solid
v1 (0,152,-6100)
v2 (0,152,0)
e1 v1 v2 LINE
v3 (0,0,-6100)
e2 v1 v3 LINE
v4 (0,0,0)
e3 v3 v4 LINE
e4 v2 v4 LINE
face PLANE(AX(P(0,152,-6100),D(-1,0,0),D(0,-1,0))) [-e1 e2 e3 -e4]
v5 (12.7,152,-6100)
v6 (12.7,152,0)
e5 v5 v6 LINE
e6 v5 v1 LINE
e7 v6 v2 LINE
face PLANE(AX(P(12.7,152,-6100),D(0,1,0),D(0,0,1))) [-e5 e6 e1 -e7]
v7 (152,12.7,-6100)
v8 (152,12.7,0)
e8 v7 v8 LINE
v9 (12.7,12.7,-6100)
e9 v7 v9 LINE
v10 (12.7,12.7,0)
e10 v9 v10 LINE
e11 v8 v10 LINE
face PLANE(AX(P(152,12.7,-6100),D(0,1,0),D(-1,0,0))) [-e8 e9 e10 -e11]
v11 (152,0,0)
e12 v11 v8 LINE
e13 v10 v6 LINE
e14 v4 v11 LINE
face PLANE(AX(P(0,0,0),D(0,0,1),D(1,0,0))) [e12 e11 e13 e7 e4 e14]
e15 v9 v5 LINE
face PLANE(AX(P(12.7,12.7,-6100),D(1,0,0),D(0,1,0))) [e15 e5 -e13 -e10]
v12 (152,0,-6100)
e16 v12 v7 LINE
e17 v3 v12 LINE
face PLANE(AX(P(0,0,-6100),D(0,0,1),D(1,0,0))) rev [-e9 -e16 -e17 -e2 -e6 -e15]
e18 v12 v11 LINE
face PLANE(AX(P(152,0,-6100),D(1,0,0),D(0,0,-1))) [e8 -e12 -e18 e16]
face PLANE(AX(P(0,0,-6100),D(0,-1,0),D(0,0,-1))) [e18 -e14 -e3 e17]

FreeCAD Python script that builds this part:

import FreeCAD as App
import Part
import Sketcher


def add_polygon(sketch, points):
    """Adds a closed chain of lines whose ends are joined by coincident constraints."""
    first, n = sketch.GeometryCount, len(points)
    for a, b in zip(points, points[1:] + points[:1]):
        sketch.addGeometry(Part.LineSegment(App.Vector(*a, 0), App.Vector(*b, 0)), False)
    for i in range(n):
        sketch.addConstraint(Sketcher.Constraint("Coincident", first + i, 2, first + (i + 1) % n, 1))

doc = App.newDocument("Part")
body = doc.addObject("PartDesign::Body", "Body")

# Sketch on XY plane
sketch1 = doc.addObject("Sketcher::SketchObject", "Sketch")
body.addObject(sketch1)
sketch1.AttachmentSupport = (doc.XY_Plane, [""])
sketch1.MapMode = "FlatFace"
add_polygon(sketch1, [(0, 152), (0, 0), (152, 0), (152, 12.7), (12.7, 12.7), (12.7, 152)])  # lines 0-5
sketch1.addConstraint([
    Sketcher.Constraint("Vertical", 0),
    Sketcher.Constraint("Horizontal", 1),
    Sketcher.Constraint("Vertical", 2),
    Sketcher.Constraint("Horizontal", 3),
    Sketcher.Constraint("Vertical", 4),
    Sketcher.Constraint("Horizontal", 5),
    Sketcher.Constraint("Coincident", 0, 2, -1, 1),
    Sketcher.Constraint("Equal", 1, 0),
    Sketcher.Constraint("Equal", 5, 2),
    Sketcher.Constraint("DistanceX", 1, 1, 1, 2, 152.0),
    Sketcher.Constraint("DistanceX", 3, 2, 3, 1, 139.3),
])
pad1 = doc.addObject("PartDesign::Pad", "Pad")
body.addObject(pad1)
pad1.Profile = sketch1
pad1.Length = 6100
pad1.Reversed = True

doc.recompute()
